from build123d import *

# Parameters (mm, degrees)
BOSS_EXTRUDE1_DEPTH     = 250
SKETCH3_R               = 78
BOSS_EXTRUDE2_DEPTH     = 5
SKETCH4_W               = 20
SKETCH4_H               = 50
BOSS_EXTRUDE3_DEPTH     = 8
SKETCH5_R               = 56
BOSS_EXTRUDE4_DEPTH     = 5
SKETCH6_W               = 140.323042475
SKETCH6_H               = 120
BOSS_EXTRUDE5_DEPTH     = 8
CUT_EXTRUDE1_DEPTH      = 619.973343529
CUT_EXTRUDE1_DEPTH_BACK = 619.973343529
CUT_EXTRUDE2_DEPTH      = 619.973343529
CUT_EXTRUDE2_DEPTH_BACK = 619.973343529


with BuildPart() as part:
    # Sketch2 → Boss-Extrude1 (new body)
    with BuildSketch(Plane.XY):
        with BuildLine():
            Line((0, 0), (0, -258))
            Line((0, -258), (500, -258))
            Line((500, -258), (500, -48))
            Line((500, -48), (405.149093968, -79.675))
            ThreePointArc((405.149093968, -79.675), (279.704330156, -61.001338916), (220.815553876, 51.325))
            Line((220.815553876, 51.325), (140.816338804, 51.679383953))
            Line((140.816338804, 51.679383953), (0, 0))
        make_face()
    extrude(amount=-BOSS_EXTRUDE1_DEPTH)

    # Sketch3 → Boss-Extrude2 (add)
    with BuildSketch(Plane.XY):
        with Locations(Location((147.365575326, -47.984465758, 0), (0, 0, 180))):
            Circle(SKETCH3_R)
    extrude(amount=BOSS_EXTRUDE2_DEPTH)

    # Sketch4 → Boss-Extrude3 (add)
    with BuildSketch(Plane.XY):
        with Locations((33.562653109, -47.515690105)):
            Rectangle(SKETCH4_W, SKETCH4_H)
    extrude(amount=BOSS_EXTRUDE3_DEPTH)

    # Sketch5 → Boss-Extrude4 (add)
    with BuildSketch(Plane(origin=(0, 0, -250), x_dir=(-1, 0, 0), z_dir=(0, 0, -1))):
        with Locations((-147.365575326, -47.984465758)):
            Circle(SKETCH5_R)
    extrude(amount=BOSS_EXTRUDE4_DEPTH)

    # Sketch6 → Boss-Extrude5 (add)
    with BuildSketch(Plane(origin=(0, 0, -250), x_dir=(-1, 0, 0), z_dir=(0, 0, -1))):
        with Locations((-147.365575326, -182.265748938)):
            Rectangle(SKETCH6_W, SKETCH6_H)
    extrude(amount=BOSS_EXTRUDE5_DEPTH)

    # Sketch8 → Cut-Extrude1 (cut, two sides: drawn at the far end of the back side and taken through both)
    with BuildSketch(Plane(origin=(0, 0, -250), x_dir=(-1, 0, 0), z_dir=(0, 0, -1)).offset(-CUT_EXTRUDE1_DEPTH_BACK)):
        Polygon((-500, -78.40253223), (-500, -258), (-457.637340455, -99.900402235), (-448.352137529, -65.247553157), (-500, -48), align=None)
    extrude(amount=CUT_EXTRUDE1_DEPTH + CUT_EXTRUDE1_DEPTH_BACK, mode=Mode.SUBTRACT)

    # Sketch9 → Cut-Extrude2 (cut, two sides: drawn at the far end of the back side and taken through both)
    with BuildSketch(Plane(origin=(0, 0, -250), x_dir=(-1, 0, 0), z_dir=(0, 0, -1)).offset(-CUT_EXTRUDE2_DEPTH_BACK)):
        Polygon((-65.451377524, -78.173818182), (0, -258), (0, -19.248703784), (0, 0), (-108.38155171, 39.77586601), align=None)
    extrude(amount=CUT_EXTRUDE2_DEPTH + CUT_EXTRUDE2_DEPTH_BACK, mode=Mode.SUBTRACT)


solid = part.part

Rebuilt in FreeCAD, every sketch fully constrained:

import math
import FreeCAD as App
import Part
import Sketcher

V = App.Vector
Q = App.Units.Quantity


def add_polygon(sketch, points):
    """Adds a closed chain of lines whose ends are joined by coincident constraints."""
    first, n = sketch.GeometryCount, len(points)
    for a, b in zip(points, points[1:] + points[:1]):
        sketch.addGeometry(Part.LineSegment(App.Vector(*a, 0), App.Vector(*b, 0)), False)
    for i in range(n):
        sketch.addConstraint(Sketcher.Constraint("Coincident", first + i, 2, first + (i + 1) % n, 1))

doc = App.newDocument("Part")
params = doc.addObject("Spreadsheet::Sheet", "Params")
for row, (alias, value) in enumerate([
    ("sketch1_radius", "140 mm"),
    ("sketch1_width", "500 mm"),
    ("sketch1_height", "258 mm"),
    ("sketch1_height2", "210 mm"),
    ("sketch1_length", "100 mm"),
    ("pad1_length", "250 mm"),
    ("sketch2_diameter", "156 mm"),
    ("pad2_length", "5 mm"),
    ("sketch3_width", "20 mm"),
    ("sketch3_height", "50 mm"),
    ("pad3_length", "8 mm"),
    ("sketch4_diameter", "112 mm"),
    ("pad4_length", "5 mm"),
    ("sketch5_height", "120 mm"),
    ("pad5_length", "8 mm"),
    ("sketch6_height", "210 mm"),
    ("sketch7_height", "258 mm"),
], start=1):
    params.set(f"A{row}", alias)
    params.set(f"B{row}", "=" + value)
    params.setAlias(f"B{row}", alias)

body = doc.addObject("PartDesign::Body", "Body")

# Sketch on XY plane
sketch1 = body.newObject("Sketcher::SketchObject", "Sketch")
sketch1.AttachmentSupport = (doc.getObject("XY_Plane"), [""])
sketch1.MapMode = "FlatFace"
sketch1.addGeometry([
    Part.LineSegment(V(0, 0, 0), V(0, -258, 0)),  # 0
    Part.LineSegment(V(0, -258, 0), V(500, -258, 0)),  # 1
    Part.LineSegment(V(500, -258, 0), V(500, -48, 0)),  # 2
    Part.LineSegment(V(500, -48, 0), V(405, -80, 0)),  # 3
    Part.ArcOfCircle(Part.Circle(V(361, 53, 0), V(0, 0, 1), 140), math.radians(-179), math.radians(-72)),  # 4
    Part.LineSegment(V(221, 51, 0), V(141, 52, 0)),  # 5
    Part.LineSegment(V(141, 52, 0), V(0, 0, 0)),  # 6
], False)
sketch1.addConstraint([
    Sketcher.Constraint("Coincident", 0, 2, 1, 1),
    Sketcher.Constraint("Coincident", 1, 2, 2, 1),
    Sketcher.Constraint("Coincident", 2, 2, 3, 1),
    Sketcher.Constraint("Tangent", 3, 2, 4, 2),
    Sketcher.Constraint("Coincident", 4, 1, 5, 1),
    Sketcher.Constraint("Coincident", 5, 2, 6, 1),
    Sketcher.Constraint("Coincident", 6, 2, 0, 1),
    Sketcher.Constraint("Vertical", 0),
    Sketcher.Constraint("Horizontal", 1),
    Sketcher.Constraint("Vertical", 2),
    Sketcher.Constraint("Coincident", 6, 2, -1, 1),
    Sketcher.Constraint("Radius", 4, Q("140 mm")),
    Sketcher.Constraint("DistanceX", 1, 1, 1, 2, Q("500 mm")),
    Sketcher.Constraint("DistanceY", 0, 2, 0, 1, Q("258 mm")),
    Sketcher.Constraint("DistanceY", 2, 1, 2, 2, Q("210 mm")),
    Sketcher.Constraint("Distance", 3, Q("100 mm")),
    Sketcher.Constraint("Distance", 5, Q("80 mm")),
    Sketcher.Constraint("Distance", 6, Q("150 mm")),
    Sketcher.Constraint("DistanceY", 3, 2, 4, 1, Q("131 mm")),
    Sketcher.Constraint("DistanceY", 3, 2, -1, 1, Q("79.675 mm")),
])
sketch1.setExpression("Constraints[11]", "Params.sketch1_radius")
sketch1.setExpression("Constraints[12]", "Params.sketch1_width")
sketch1.setExpression("Constraints[13]", "Params.sketch1_height")
sketch1.setExpression("Constraints[14]", "Params.sketch1_height2")
sketch1.setExpression("Constraints[15]", "Params.sketch1_length")
pad1 = body.newObject("PartDesign::Pad", "Pad")
pad1.Profile = sketch1
pad1.setExpression("Length", "Params.pad1_length")
pad1.Reversed = True

# Sketch on XY plane
sketch2 = body.newObject("Sketcher::SketchObject", "Sketch001")
sketch2.AttachmentSupport = (doc.getObject("XY_Plane"), [""])
sketch2.MapMode = "FlatFace"
sketch2.addGeometry(Part.Circle(V(147, -48, 0), V(0, 0, 1), 78), False)
sketch2.addConstraint([
    Sketcher.Constraint("Diameter", 0, Q("156 mm")),
    Sketcher.Constraint("DistanceX", -1, 1, 0, 3, Q("147.365575 mm")),
    Sketcher.Constraint("DistanceY", 0, 3, -1, 1, Q("47.984466 mm")),
])
sketch2.setExpression("Constraints[0]", "Params.sketch2_diameter")
pad2 = body.newObject("PartDesign::Pad", "Pad001")
pad2.Profile = sketch2
pad2.setExpression("Length", "Params.pad2_length")

# Sketch on XY plane
sketch3 = body.newObject("Sketcher::SketchObject", "Sketch002")
sketch3.AttachmentSupport = (doc.getObject("XY_Plane"), [""])
sketch3.MapMode = "FlatFace"
add_polygon(sketch3, [(24, -23), (24, -73), (44, -73), (44, -23)])  # lines 0-3
sketch3.addConstraint([
    Sketcher.Constraint("Vertical", 0),
    Sketcher.Constraint("Horizontal", 1),
    Sketcher.Constraint("Vertical", 2),
    Sketcher.Constraint("Horizontal", 3),
    Sketcher.Constraint("DistanceX", 1, 1, 1, 2, Q("20 mm")),
    Sketcher.Constraint("DistanceY", 0, 2, 0, 1, Q("50 mm")),
    Sketcher.Constraint("DistanceY", 0, 2, -1, 1, Q("72.51569 mm")),
    Sketcher.Constraint("DistanceX", -1, 1, 0, 2, Q("23.562653 mm")),
])
sketch3.setExpression("Constraints[8]", "Params.sketch3_width")
sketch3.setExpression("Constraints[9]", "Params.sketch3_height")
pad3 = body.newObject("PartDesign::Pad", "Pad002")
pad3.Profile = sketch3
pad3.setExpression("Length", "Params.pad3_length")

# Sketch on XY plane
sketch4 = body.newObject("Sketcher::SketchObject", "Sketch003")
sketch4.AttachmentSupport = (doc.getObject("XY_Plane"), [""])
sketch4.MapMode = "FlatFace"
sketch4.AttachmentOffset = App.Placement(V(0, 0, -250), App.Rotation())
sketch4.addGeometry(Part.Circle(V(147, -48, 0), V(0, 0, 1), 56), False)
sketch4.addConstraint([
    Sketcher.Constraint("Diameter", 0, Q("112 mm")),
    Sketcher.Constraint("DistanceX", -1, 1, 0, 3, Q("147.365575 mm")),
    Sketcher.Constraint("DistanceY", 0, 3, -1, 1, Q("47.984466 mm")),
])
sketch4.setExpression("Constraints[0]", "Params.sketch4_diameter")
pad4 = body.newObject("PartDesign::Pad", "Pad003")
pad4.Profile = sketch4
pad4.setExpression("Length", "Params.pad4_length")
pad4.Reversed = True

# Sketch on XY plane
sketch5 = body.newObject("Sketcher::SketchObject", "Sketch004")
sketch5.AttachmentSupport = (doc.getObject("XY_Plane"), [""])
sketch5.MapMode = "FlatFace"
sketch5.AttachmentOffset = App.Placement(V(0, 0, -250), App.Rotation())
add_polygon(sketch5, [(218, -122), (218, -242), (77, -242), (77, -122)])  # lines 0-3
sketch5.addConstraint([
    Sketcher.Constraint("Vertical", 0),
    Sketcher.Constraint("Horizontal", 1),
    Sketcher.Constraint("Vertical", 2),
    Sketcher.Constraint("Horizontal", 3),
    Sketcher.Constraint("DistanceY", 0, 2, 0, 1, Q("120 mm")),
    Sketcher.Constraint("DistanceX", 1, 2, 1, 1, Q("140.323042 mm")),
    Sketcher.Constraint("DistanceY", 0, 2, -1, 1, Q("242.265749 mm")),
    Sketcher.Constraint("DistanceX", -1, 1, 0, 2, Q("217.527097 mm")),
])
sketch5.setExpression("Constraints[8]", "Params.sketch5_height")
pad5 = body.newObject("PartDesign::Pad", "Pad004")
pad5.Profile = sketch5
pad5.setExpression("Length", "Params.pad5_length")
pad5.Reversed = True

# Sketch on XY plane
sketch6 = body.newObject("Sketcher::SketchObject", "Sketch005")
sketch6.AttachmentSupport = (doc.getObject("XY_Plane"), [""])
sketch6.MapMode = "FlatFace"
sketch6.AttachmentOffset = App.Placement(V(0, 0, -250), App.Rotation())
add_polygon(sketch6, [(500, -258), (458, -100), (448, -65), (500, -48)])  # lines 0-3
sketch6.addConstraint([
    Sketcher.Constraint("Vertical", 3),
    Sketcher.Constraint("Parallel", 0, 1),
    Sketcher.Constraint("DistanceY", 3, 2, 3, 1, Q("210 mm")),
    Sketcher.Constraint("Angle", 0, Q("105 deg")),
    Sketcher.Constraint("DistanceX", -1, 1, 2, 2, Q("500 mm")),
    Sketcher.Constraint("DistanceY", 2, 2, -1, 1, Q("48 mm")),
    Sketcher.Constraint("Distance", 1, Q("35.875269 mm")),
    Sketcher.Constraint("DistanceX", -1, 1, 0, 2, Q("457.63734 mm")),
])
sketch6.setExpression("Constraints[6]", "Params.sketch6_height")
pocket1 = body.newObject("PartDesign::Pocket", "Pocket")
pocket1.Profile = sketch6
pocket1.Type = "ThroughAll"
pocket1.Midplane = True

# Sketch on XY plane
sketch7 = body.newObject("Sketcher::SketchObject", "Sketch006")
sketch7.AttachmentSupport = (doc.getObject("XY_Plane"), [""])
sketch7.MapMode = "FlatFace"
sketch7.AttachmentOffset = App.Placement(V(0, 0, -250), App.Rotation())
add_polygon(sketch7, [(65, -78), (0, -258), (0, 0), (108, 40)])  # lines 0-3
sketch7.addConstraint([
    Sketcher.Constraint("Vertical", 1),
    Sketcher.Constraint("Coincident", 1, 2, -1, 1),
    Sketcher.Constraint("Parallel", 0, 3),
    Sketcher.Constraint("DistanceY", 1, 1, 1, 2, Q("258 mm")),
    Sketcher.Constraint("Angle", 0, Q("-110 deg")),
    Sketcher.Constraint("DistanceX", -1, 1, 2, 2, Q("108.381552 mm")),
    Sketcher.Constraint("DistanceY", 3, 2, -1, 1, Q("78.173818 mm")),
])
sketch7.setExpression("Constraints[7]", "Params.sketch7_height")
pocket2 = body.newObject("PartDesign::Pocket", "Pocket001")
pocket2.Profile = sketch7
pocket2.Type = "ThroughAll"
pocket2.Midplane = True

doc.recompute()
